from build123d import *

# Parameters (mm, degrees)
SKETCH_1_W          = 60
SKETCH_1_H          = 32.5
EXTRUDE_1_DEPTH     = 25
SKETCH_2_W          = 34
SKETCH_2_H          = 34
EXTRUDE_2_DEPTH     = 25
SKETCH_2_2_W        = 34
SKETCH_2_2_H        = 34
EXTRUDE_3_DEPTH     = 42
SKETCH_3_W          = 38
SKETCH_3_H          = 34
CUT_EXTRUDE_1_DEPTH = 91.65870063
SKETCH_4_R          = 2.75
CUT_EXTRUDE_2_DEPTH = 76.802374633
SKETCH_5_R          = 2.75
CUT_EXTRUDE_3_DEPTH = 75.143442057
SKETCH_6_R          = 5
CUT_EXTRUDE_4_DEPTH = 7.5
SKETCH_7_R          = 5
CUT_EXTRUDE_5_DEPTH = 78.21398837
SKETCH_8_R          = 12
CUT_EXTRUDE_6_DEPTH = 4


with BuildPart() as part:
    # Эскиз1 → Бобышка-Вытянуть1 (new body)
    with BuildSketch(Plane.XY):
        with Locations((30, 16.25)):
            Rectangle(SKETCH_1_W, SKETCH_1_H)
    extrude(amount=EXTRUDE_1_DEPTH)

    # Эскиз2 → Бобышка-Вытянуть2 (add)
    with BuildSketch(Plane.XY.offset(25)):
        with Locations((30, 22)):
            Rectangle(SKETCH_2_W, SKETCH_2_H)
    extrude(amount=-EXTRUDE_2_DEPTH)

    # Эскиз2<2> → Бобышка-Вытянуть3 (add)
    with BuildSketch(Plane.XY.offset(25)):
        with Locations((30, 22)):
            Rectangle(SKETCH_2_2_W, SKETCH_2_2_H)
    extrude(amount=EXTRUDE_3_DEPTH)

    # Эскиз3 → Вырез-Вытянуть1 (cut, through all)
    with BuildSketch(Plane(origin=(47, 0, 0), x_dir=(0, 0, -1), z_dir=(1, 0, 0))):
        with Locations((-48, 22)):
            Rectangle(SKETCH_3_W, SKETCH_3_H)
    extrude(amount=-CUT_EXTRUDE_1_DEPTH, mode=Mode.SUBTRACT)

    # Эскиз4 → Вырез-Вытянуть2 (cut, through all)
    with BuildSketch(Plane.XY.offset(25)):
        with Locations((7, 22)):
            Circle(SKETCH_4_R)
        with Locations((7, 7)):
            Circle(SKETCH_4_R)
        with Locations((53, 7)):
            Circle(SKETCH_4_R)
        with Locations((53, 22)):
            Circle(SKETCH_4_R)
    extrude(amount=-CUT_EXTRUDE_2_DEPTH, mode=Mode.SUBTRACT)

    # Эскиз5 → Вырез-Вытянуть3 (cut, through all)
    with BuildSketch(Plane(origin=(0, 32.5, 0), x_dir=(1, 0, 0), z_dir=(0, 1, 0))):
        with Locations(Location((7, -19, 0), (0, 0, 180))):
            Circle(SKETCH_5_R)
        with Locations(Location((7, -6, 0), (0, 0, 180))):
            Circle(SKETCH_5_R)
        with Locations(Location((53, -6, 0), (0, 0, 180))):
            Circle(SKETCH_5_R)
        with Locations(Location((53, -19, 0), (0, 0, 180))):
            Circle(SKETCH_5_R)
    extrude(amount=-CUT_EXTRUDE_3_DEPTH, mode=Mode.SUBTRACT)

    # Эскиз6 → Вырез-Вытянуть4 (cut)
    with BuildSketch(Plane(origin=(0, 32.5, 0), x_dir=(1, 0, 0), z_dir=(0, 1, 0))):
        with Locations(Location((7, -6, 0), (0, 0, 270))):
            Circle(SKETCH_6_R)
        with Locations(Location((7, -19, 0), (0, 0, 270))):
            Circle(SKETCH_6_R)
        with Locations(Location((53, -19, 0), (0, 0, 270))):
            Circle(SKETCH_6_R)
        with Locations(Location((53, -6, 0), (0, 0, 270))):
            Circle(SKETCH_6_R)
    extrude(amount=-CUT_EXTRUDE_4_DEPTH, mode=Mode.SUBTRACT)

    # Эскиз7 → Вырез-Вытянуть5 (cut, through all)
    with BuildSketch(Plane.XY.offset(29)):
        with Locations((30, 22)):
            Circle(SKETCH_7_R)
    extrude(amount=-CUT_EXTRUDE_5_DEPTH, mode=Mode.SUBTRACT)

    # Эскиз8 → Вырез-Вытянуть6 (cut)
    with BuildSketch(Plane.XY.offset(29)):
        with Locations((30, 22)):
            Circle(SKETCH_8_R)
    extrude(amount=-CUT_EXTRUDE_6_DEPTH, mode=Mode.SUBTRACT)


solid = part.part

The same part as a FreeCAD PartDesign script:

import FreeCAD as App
import Part
import Sketcher
Q = App.Units.Quantity

doc = App.newDocument("Part")
body = doc.addObject("PartDesign::Body", "Body")

sketch1 = body.newObject("Sketcher::SketchObject", "Sketch")
sketch1.AttachmentSupport = (doc.getObject("XY_Plane"), [""])
sketch1.MapMode = "FlatFace"
sketch1.addGeometry(Part.LineSegment(App.Vector(0, 32.5, 0), App.Vector(0, 0, 0)), False)
sketch1.addGeometry(Part.LineSegment(App.Vector(0, 0, 0), App.Vector(60, 0, 0)), False)
sketch1.addGeometry(Part.LineSegment(App.Vector(60, 0, 0), App.Vector(60, 32.5, 0)), False)
sketch1.addGeometry(Part.LineSegment(App.Vector(60, 32.5, 0), App.Vector(0, 32.5, 0)), False)
sketch1.addConstraint(Sketcher.Constraint("Coincident", 0, 2, 1, 1))
sketch1.addConstraint(Sketcher.Constraint("Coincident", 1, 2, 2, 1))
sketch1.addConstraint(Sketcher.Constraint("Coincident", 2, 2, 3, 1))
sketch1.addConstraint(Sketcher.Constraint("Coincident", 3, 2, 0, 1))
sketch1.addConstraint(Sketcher.Constraint("Vertical", 0))
sketch1.addConstraint(Sketcher.Constraint("Horizontal", 1))
sketch1.addConstraint(Sketcher.Constraint("Vertical", 2))
sketch1.addConstraint(Sketcher.Constraint("Horizontal", 3))
sketch1.addConstraint(Sketcher.Constraint("Coincident", 0, 2, -1, 1))
sketch1.addConstraint(Sketcher.Constraint("DistanceX", 1, 1, 1, 2, Q("60 mm")))
sketch1.addConstraint(Sketcher.Constraint("DistanceY", 0, 2, 0, 1, Q("32.5 mm")))
pad1 = body.newObject("PartDesign::Pad", "Pad")
pad1.Profile = sketch1
pad1.Length = 25

sketch2 = body.newObject("Sketcher::SketchObject", "Sketch001")
sketch2.AttachmentSupport = (doc.getObject("XY_Plane"), [""])
sketch2.MapMode = "FlatFace"
sketch2.AttachmentOffset = App.Placement(App.Vector(0, 0, 25), App.Rotation())
sketch2.addGeometry(Part.LineSegment(App.Vector(13, 39, 0), App.Vector(13, 5, 0)), False)
sketch2.addGeometry(Part.LineSegment(App.Vector(13, 5, 0), App.Vector(47, 5, 0)), False)
sketch2.addGeometry(Part.LineSegment(App.Vector(47, 5, 0), App.Vector(47, 39, 0)), False)
sketch2.addGeometry(Part.LineSegment(App.Vector(47, 39, 0), App.Vector(13, 39, 0)), False)
sketch2.addConstraint(Sketcher.Constraint("Coincident", 0, 2, 1, 1))
sketch2.addConstraint(Sketcher.Constraint("Coincident", 1, 2, 2, 1))
sketch2.addConstraint(Sketcher.Constraint("Coincident", 2, 2, 3, 1))
sketch2.addConstraint(Sketcher.Constraint("Coincident", 3, 2, 0, 1))
sketch2.addConstraint(Sketcher.Constraint("Vertical", 0))
sketch2.addConstraint(Sketcher.Constraint("Horizontal", 1))
sketch2.addConstraint(Sketcher.Constraint("Vertical", 2))
sketch2.addConstraint(Sketcher.Constraint("Horizontal", 3))
sketch2.addConstraint(Sketcher.Constraint("Equal", 3, 0))
sketch2.addConstraint(Sketcher.Constraint("DistanceX", 1, 1, 1, 2, Q("34 mm")))
sketch2.addConstraint(Sketcher.Constraint("DistanceX", -1, 1, 0, 2, Q("13 mm")))
sketch2.addConstraint(Sketcher.Constraint("DistanceY", -1, 1, 0, 2, Q("5 mm")))
pad2 = body.newObject("PartDesign::Pad", "Pad001")
pad2.Profile = sketch2
pad2.Length = 25
pad2.Reversed = True

sketch3 = body.newObject("Sketcher::SketchObject", "Sketch002")
sketch3.AttachmentSupport = (doc.getObject("XY_Plane"), [""])
sketch3.MapMode = "FlatFace"
sketch3.AttachmentOffset = App.Placement(App.Vector(0, 0, 25), App.Rotation())
sketch3.addGeometry(Part.LineSegment(App.Vector(13, 39, 0), App.Vector(13, 5, 0)), False)
sketch3.addGeometry(Part.LineSegment(App.Vector(13, 5, 0), App.Vector(47, 5, 0)), False)
sketch3.addGeometry(Part.LineSegment(App.Vector(47, 5, 0), App.Vector(47, 39, 0)), False)
sketch3.addGeometry(Part.LineSegment(App.Vector(47, 39, 0), App.Vector(13, 39, 0)), False)
sketch3.addConstraint(Sketcher.Constraint("Coincident", 0, 2, 1, 1))
sketch3.addConstraint(Sketcher.Constraint("Coincident", 1, 2, 2, 1))
sketch3.addConstraint(Sketcher.Constraint("Coincident", 2, 2, 3, 1))
sketch3.addConstraint(Sketcher.Constraint("Coincident", 3, 2, 0, 1))
sketch3.addConstraint(Sketcher.Constraint("Vertical", 0))
sketch3.addConstraint(Sketcher.Constraint("Horizontal", 1))
sketch3.addConstraint(Sketcher.Constraint("Vertical", 2))
sketch3.addConstraint(Sketcher.Constraint("Horizontal", 3))
sketch3.addConstraint(Sketcher.Constraint("Equal", 3, 0))
sketch3.addConstraint(Sketcher.Constraint("DistanceX", 1, 1, 1, 2, Q("34 mm")))
sketch3.addConstraint(Sketcher.Constraint("DistanceX", -1, 1, 0, 2, Q("13 mm")))
sketch3.addConstraint(Sketcher.Constraint("DistanceY", -1, 1, 0, 2, Q("5 mm")))
pad3 = body.newObject("PartDesign::Pad", "Pad002")
pad3.Profile = sketch3
pad3.Length = 42

sketch4 = body.newObject("Sketcher::SketchObject", "Sketch003")
sketch4.AttachmentSupport = (doc.getObject("YZ_Plane"), [""])
sketch4.MapMode = "FlatFace"
sketch4.AttachmentOffset = App.Placement(App.Vector(0, 0, 47), App.Rotation())
sketch4.addGeometry(Part.LineSegment(App.Vector(39, 67, 0), App.Vector(5, 67, 0)), False)
sketch4.addGeometry(Part.LineSegment(App.Vector(5, 67, 0), App.Vector(5, 29, 0)), False)
sketch4.addGeometry(Part.LineSegment(App.Vector(5, 29, 0), App.Vector(39, 29, 0)), False)
sketch4.addGeometry(Part.LineSegment(App.Vector(39, 29, 0), App.Vector(39, 67, 0)), False)
sketch4.addConstraint(Sketcher.Constraint("Coincident", 0, 2, 1, 1))
sketch4.addConstraint(Sketcher.Constraint("Coincident", 1, 2, 2, 1))
sketch4.addConstraint(Sketcher.Constraint("Coincident", 2, 2, 3, 1))
sketch4.addConstraint(Sketcher.Constraint("Coincident", 3, 2, 0, 1))
sketch4.addConstraint(Sketcher.Constraint("Horizontal", 0))
sketch4.addConstraint(Sketcher.Constraint("Vertical", 1))
sketch4.addConstraint(Sketcher.Constraint("Horizontal", 2))
sketch4.addConstraint(Sketcher.Constraint("Vertical", 3))
sketch4.addConstraint(Sketcher.Constraint("DistanceX", 0, 2, 0, 1, Q("34 mm")))
sketch4.addConstraint(Sketcher.Constraint("DistanceY", 1, 2, 1, 1, Q("38 mm")))
sketch4.addConstraint(Sketcher.Constraint("DistanceX", -1, 1, 0, 2, Q("5 mm")))
sketch4.addConstraint(Sketcher.Constraint("DistanceY", -1, 1, 0, 2, Q("67 mm")))
pocket1 = body.newObject("PartDesign::Pocket", "Pocket")
pocket1.Profile = sketch4
pocket1.Type = "ThroughAll"

sketch5 = body.newObject("Sketcher::SketchObject", "Sketch004")
sketch5.AttachmentSupport = (doc.getObject("XY_Plane"), [""])
sketch5.MapMode = "FlatFace"
sketch5.AttachmentOffset = App.Placement(App.Vector(0, 0, 25), App.Rotation())
sketch5.addGeometry(Part.Circle(App.Vector(7, 22, 0), App.Vector(0, 0, 1), 2.75), False)
sketch5.addGeometry(Part.Circle(App.Vector(7, 7, 0), App.Vector(0, 0, 1), 2.75), False)
sketch5.addGeometry(Part.Circle(App.Vector(53, 7, 0), App.Vector(0, 0, 1), 2.75), False)
sketch5.addGeometry(Part.Circle(App.Vector(53, 22, 0), App.Vector(0, 0, 1), 2.75), False)
sketch5.addConstraint(Sketcher.Constraint("Equal", 0, 1))
sketch5.addConstraint(Sketcher.Constraint("Equal", 1, 2))
sketch5.addConstraint(Sketcher.Constraint("Equal", 2, 3))
sketch5.addConstraint(Sketcher.Constraint("Horizontal", 1, 3, 2, 3))
sketch5.addConstraint(Sketcher.Constraint("Horizontal", 0, 3, 3, 3))
sketch5.addConstraint(Sketcher.Constraint("Vertical", 0, 3, 1, 3))
sketch5.addConstraint(Sketcher.Constraint("Vertical", 2, 3, 3, 3))
sketch5.addConstraint(Sketcher.Constraint("Diameter", 0, Q("5.5 mm")))
sketch5.addConstraint(Sketcher.Constraint("DistanceX", -1, 1, 0, 3, Q("7 mm")))
sketch5.addConstraint(Sketcher.Constraint("DistanceY", -1, 1, 0, 3, Q("22 mm")))
sketch5.addConstraint(Sketcher.Constraint("DistanceY", -1, 1, 1, 3, Q("7 mm")))
sketch5.addConstraint(Sketcher.Constraint("DistanceX", -1, 1, 2, 3, Q("53 mm")))
pocket2 = body.newObject("PartDesign::Pocket", "Pocket001")
pocket2.Profile = sketch5
pocket2.Type = "ThroughAll"

sketch6 = body.newObject("Sketcher::SketchObject", "Sketch005")
sketch6.AttachmentSupport = (doc.getObject("XZ_Plane"), [""])
sketch6.MapMode = "FlatFace"
sketch6.AttachmentOffset = App.Placement(App.Vector(0, 0, -32.5), App.Rotation())
sketch6.addGeometry(Part.Circle(App.Vector(7, 19, 0), App.Vector(0, 0, 1), 2.75), False)
sketch6.addGeometry(Part.Circle(App.Vector(7, 6, 0), App.Vector(0, 0, 1), 2.75), False)
sketch6.addGeometry(Part.Circle(App.Vector(53, 6, 0), App.Vector(0, 0, 1), 2.75), False)
sketch6.addGeometry(Part.Circle(App.Vector(53, 19, 0), App.Vector(0, 0, 1), 2.75), False)
sketch6.addConstraint(Sketcher.Constraint("Equal", 0, 1))
sketch6.addConstraint(Sketcher.Constraint("Equal", 1, 2))
sketch6.addConstraint(Sketcher.Constraint("Equal", 2, 3))
sketch6.addConstraint(Sketcher.Constraint("Horizontal", 1, 3, 2, 3))
sketch6.addConstraint(Sketcher.Constraint("Horizontal", 0, 3, 3, 3))
sketch6.addConstraint(Sketcher.Constraint("Vertical", 0, 3, 1, 3))
sketch6.addConstraint(Sketcher.Constraint("Vertical", 2, 3, 3, 3))
sketch6.addConstraint(Sketcher.Constraint("Diameter", 0, Q("5.5 mm")))
sketch6.addConstraint(Sketcher.Constraint("DistanceX", -1, 1, 0, 3, Q("7 mm")))
sketch6.addConstraint(Sketcher.Constraint("DistanceY", -1, 1, 0, 3, Q("19 mm")))
sketch6.addConstraint(Sketcher.Constraint("DistanceY", -1, 1, 1, 3, Q("6 mm")))
sketch6.addConstraint(Sketcher.Constraint("DistanceX", -1, 1, 2, 3, Q("53 mm")))
pocket3 = body.newObject("PartDesign::Pocket", "Pocket002")
pocket3.Profile = sketch6
pocket3.Type = "ThroughAll"
pocket3.Reversed = True

sketch7 = body.newObject("Sketcher::SketchObject", "Sketch006")
sketch7.AttachmentSupport = (doc.getObject("XZ_Plane"), [""])
sketch7.MapMode = "FlatFace"
sketch7.AttachmentOffset = App.Placement(App.Vector(0, 0, -32.5), App.Rotation())
sketch7.addGeometry(Part.Circle(App.Vector(7, 6, 0), App.Vector(0, 0, 1), 5), False)
sketch7.addGeometry(Part.Circle(App.Vector(7, 19, 0), App.Vector(0, 0, 1), 5), False)
sketch7.addGeometry(Part.Circle(App.Vector(53, 19, 0), App.Vector(0, 0, 1), 5), False)
sketch7.addGeometry(Part.Circle(App.Vector(53, 6, 0), App.Vector(0, 0, 1), 5), False)
sketch7.addConstraint(Sketcher.Constraint("Equal", 0, 1))
sketch7.addConstraint(Sketcher.Constraint("Equal", 1, 2))
sketch7.addConstraint(Sketcher.Constraint("Equal", 2, 3))
sketch7.addConstraint(Sketcher.Constraint("Horizontal", 1, 3, 2, 3))
sketch7.addConstraint(Sketcher.Constraint("Horizontal", 0, 3, 3, 3))
sketch7.addConstraint(Sketcher.Constraint("Vertical", 0, 3, 1, 3))
sketch7.addConstraint(Sketcher.Constraint("Vertical", 2, 3, 3, 3))
sketch7.addConstraint(Sketcher.Constraint("Diameter", 0, Q("10 mm")))
sketch7.addConstraint(Sketcher.Constraint("DistanceX", -1, 1, 0, 3, Q("7 mm")))
sketch7.addConstraint(Sketcher.Constraint("DistanceY", -1, 1, 0, 3, Q("6 mm")))
sketch7.addConstraint(Sketcher.Constraint("DistanceY", -1, 1, 1, 3, Q("19 mm")))
sketch7.addConstraint(Sketcher.Constraint("DistanceX", -1, 1, 2, 3, Q("53 mm")))
pocket4 = body.newObject("PartDesign::Pocket", "Pocket003")
pocket4.Profile = sketch7
pocket4.Length = 7.5
pocket4.Reversed = True

sketch8 = body.newObject("Sketcher::SketchObject", "Sketch007")
sketch8.AttachmentSupport = (doc.getObject("XY_Plane"), [""])
sketch8.MapMode = "FlatFace"
sketch8.AttachmentOffset = App.Placement(App.Vector(0, 0, 29), App.Rotation())
sketch8.addGeometry(Part.Circle(App.Vector(30, 22, 0), App.Vector(0, 0, 1), 5), False)
sketch8.addConstraint(Sketcher.Constraint("Diameter", 0, Q("10 mm")))
sketch8.addConstraint(Sketcher.Constraint("DistanceX", -1, 1, 0, 3, Q("30 mm")))
sketch8.addConstraint(Sketcher.Constraint("DistanceY", -1, 1, 0, 3, Q("22 mm")))
pocket5 = body.newObject("PartDesign::Pocket", "Pocket004")
pocket5.Profile = sketch8
pocket5.Type = "ThroughAll"

sketch9 = body.newObject("Sketcher::SketchObject", "Sketch008")
sketch9.AttachmentSupport = (doc.getObject("XY_Plane"), [""])
sketch9.MapMode = "FlatFace"
sketch9.AttachmentOffset = App.Placement(App.Vector(0, 0, 29), App.Rotation())
sketch9.addGeometry(Part.Circle(App.Vector(30, 22, 0), App.Vector(0, 0, 1), 12), False)
sketch9.addConstraint(Sketcher.Constraint("Diameter", 0, Q("24 mm")))
sketch9.addConstraint(Sketcher.Constraint("DistanceX", -1, 1, 0, 3, Q("30 mm")))
sketch9.addConstraint(Sketcher.Constraint("DistanceY", -1, 1, 0, 3, Q("22 mm")))
pocket6 = body.newObject("PartDesign::Pocket", "Pocket005")
pocket6.Profile = sketch9
pocket6.Length = 4

doc.recompute()
